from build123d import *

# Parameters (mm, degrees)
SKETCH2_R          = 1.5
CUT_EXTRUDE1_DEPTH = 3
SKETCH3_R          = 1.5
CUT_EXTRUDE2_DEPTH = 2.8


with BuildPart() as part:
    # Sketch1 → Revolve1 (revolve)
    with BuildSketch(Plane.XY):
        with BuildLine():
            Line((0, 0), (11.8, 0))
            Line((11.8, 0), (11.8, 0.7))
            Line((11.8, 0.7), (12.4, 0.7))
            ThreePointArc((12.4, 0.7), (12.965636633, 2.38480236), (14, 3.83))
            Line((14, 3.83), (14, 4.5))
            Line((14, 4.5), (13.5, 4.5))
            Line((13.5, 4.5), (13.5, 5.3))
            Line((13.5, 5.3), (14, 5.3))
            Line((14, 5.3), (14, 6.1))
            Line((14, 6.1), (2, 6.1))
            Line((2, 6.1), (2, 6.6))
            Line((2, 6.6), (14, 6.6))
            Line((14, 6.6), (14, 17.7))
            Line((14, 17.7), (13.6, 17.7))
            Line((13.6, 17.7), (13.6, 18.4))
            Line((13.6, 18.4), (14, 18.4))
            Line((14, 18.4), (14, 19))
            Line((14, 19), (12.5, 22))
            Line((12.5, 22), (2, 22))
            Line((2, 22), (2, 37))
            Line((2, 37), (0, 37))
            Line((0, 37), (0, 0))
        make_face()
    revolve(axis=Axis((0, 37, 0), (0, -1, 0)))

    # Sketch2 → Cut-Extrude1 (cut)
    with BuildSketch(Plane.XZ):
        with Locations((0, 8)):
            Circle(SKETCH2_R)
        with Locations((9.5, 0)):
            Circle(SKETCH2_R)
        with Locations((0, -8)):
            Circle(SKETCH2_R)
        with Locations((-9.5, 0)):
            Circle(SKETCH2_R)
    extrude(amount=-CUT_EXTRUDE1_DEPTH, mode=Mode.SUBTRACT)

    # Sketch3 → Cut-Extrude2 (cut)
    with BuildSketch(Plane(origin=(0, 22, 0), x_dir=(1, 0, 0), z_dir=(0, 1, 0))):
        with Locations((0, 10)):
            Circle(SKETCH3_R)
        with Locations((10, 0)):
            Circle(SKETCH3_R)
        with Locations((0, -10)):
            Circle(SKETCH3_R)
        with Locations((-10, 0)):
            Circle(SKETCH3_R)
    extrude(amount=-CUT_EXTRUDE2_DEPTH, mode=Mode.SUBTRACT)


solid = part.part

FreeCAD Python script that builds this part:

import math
import FreeCAD as App
import Part
import Sketcher
from FreeCAD import Vector
Q = App.Units.Quantity

doc = App.newDocument("Part")
body = doc.addObject("PartDesign::Body", "Body")

sketch1 = body.newObject("Sketcher::SketchObject", "Sketch")
sketch1.AttachmentSupport = (doc.getObject("XY_Plane"), [""])
sketch1.MapMode = "FlatFace"
sketch1.addGeometry([
    Part.LineSegment(Vector(0, 0, 0), Vector(11.8, 0, 0)),
    Part.LineSegment(Vector(11.8, 0, 0), Vector(11.8, 0.7, 0)),
    Part.LineSegment(Vector(11.8, 0.7, 0), Vector(12.4, 0.7, 0)),
    Part.ArcOfCircle(Part.Circle(Vector(18.308091, -0.346165, 0), Vector(0, 0, 1), 6), math.radians(135.890851), math.radians(169.958538)),
    Part.LineSegment(Vector(14, 3.83, 0), Vector(14, 4.5, 0)),
    Part.LineSegment(Vector(14, 4.5, 0), Vector(13.5, 4.5, 0)),
    Part.LineSegment(Vector(13.5, 4.5, 0), Vector(13.5, 5.3, 0)),
    Part.LineSegment(Vector(13.5, 5.3, 0), Vector(14, 5.3, 0)),
    Part.LineSegment(Vector(14, 5.3, 0), Vector(14, 6.1, 0)),
    Part.LineSegment(Vector(14, 6.1, 0), Vector(2, 6.1, 0)),
    Part.LineSegment(Vector(2, 6.1, 0), Vector(2, 6.6, 0)),
    Part.LineSegment(Vector(2, 6.6, 0), Vector(14, 6.6, 0)),
    Part.LineSegment(Vector(14, 6.6, 0), Vector(14, 17.7, 0)),
    Part.LineSegment(Vector(14, 17.7, 0), Vector(13.6, 17.7, 0)),
    Part.LineSegment(Vector(13.6, 17.7, 0), Vector(13.6, 18.4, 0)),
    Part.LineSegment(Vector(13.6, 18.4, 0), Vector(14, 18.4, 0)),
    Part.LineSegment(Vector(14, 18.4, 0), Vector(14, 19, 0)),
    Part.LineSegment(Vector(14, 19, 0), Vector(12.5, 22, 0)),
    Part.LineSegment(Vector(12.5, 22, 0), Vector(2, 22, 0)),
    Part.LineSegment(Vector(2, 22, 0), Vector(2, 37, 0)),
    Part.LineSegment(Vector(2, 37, 0), Vector(0, 37, 0)),
    Part.LineSegment(Vector(0, 37, 0), Vector(0, 0, 0)),
], False)
sketch1.addConstraint([
    Sketcher.Constraint("Coincident", 0, 2, 1, 1),
    Sketcher.Constraint("Coincident", 1, 2, 2, 1),
    Sketcher.Constraint("Coincident", 2, 2, 3, 2),
    Sketcher.Constraint("Coincident", 3, 1, 4, 1),
    Sketcher.Constraint("Coincident", 4, 2, 5, 1),
    Sketcher.Constraint("Coincident", 5, 2, 6, 1),
    Sketcher.Constraint("Coincident", 6, 2, 7, 1),
    Sketcher.Constraint("Coincident", 7, 2, 8, 1),
    Sketcher.Constraint("Coincident", 8, 2, 9, 1),
    Sketcher.Constraint("Coincident", 9, 2, 10, 1),
    Sketcher.Constraint("Coincident", 10, 2, 11, 1),
    Sketcher.Constraint("Coincident", 11, 2, 12, 1),
    Sketcher.Constraint("Coincident", 12, 2, 13, 1),
    Sketcher.Constraint("Coincident", 13, 2, 14, 1),
    Sketcher.Constraint("Coincident", 14, 2, 15, 1),
    Sketcher.Constraint("Coincident", 15, 2, 16, 1),
    Sketcher.Constraint("Coincident", 16, 2, 17, 1),
    Sketcher.Constraint("Coincident", 17, 2, 18, 1),
    Sketcher.Constraint("Coincident", 18, 2, 19, 1),
    Sketcher.Constraint("Coincident", 19, 2, 20, 1),
    Sketcher.Constraint("Coincident", 20, 2, 21, 1),
    Sketcher.Constraint("Coincident", 21, 2, 0, 1),
    Sketcher.Constraint("Horizontal", 0),
    Sketcher.Constraint("Vertical", 1),
    Sketcher.Constraint("Horizontal", 2),
    Sketcher.Constraint("Vertical", 4),
    Sketcher.Constraint("Horizontal", 5),
    Sketcher.Constraint("Vertical", 6),
    Sketcher.Constraint("Horizontal", 7),
    Sketcher.Constraint("Vertical", 8),
    Sketcher.Constraint("Horizontal", 9),
    Sketcher.Constraint("Vertical", 10),
    Sketcher.Constraint("Horizontal", 11),
    Sketcher.Constraint("Vertical", 12),
    Sketcher.Constraint("Horizontal", 13),
    Sketcher.Constraint("Vertical", 14),
    Sketcher.Constraint("Horizontal", 15),
    Sketcher.Constraint("Vertical", 16),
    Sketcher.Constraint("Horizontal", 18),
    Sketcher.Constraint("Vertical", 19),
    Sketcher.Constraint("Horizontal", 20),
    Sketcher.Constraint("Vertical", 21),
    Sketcher.Constraint("Coincident", 21, 2, -1, 1),
    Sketcher.Constraint("Vertical", 4, 2, 7, 2),
    Sketcher.Constraint("Vertical", 8, 2, 11, 2),
    Sketcher.Constraint("Vertical", 12, 2, 15, 2),
    Sketcher.Constraint("Vertical", 10, 2, 18, 2),
    Sketcher.Constraint("Equal", 6, 8),
    Sketcher.Constraint("Equal", 7, 10),
    Sketcher.Constraint("Equal", 1, 14),
    Sketcher.Constraint("Equal", 2, 16),
    Sketcher.Constraint("Radius", 3, Q("6 mm")),
    Sketcher.Constraint("DistanceX", 9, 2, 9, 1, Q("12 mm")),
    Sketcher.Constraint("DistanceX", 20, 2, 20, 1, Q("2 mm")),
    Sketcher.Constraint("DistanceY", 19, 1, 19, 2, Q("15 mm")),
    Sketcher.Constraint("DistanceY", 21, 2, 21, 1, Q("37 mm")),
    Sketcher.Constraint("DistanceX", 0, 1, 0, 2, Q("11.8 mm")),
    Sketcher.Constraint("DistanceX", 2, 1, 2, 2, Q("0.6 mm")),
    Sketcher.Constraint("DistanceX", 5, 2, 5, 1, Q("0.5 mm")),
    Sketcher.Constraint("DistanceX", 13, 2, 13, 1, Q("0.4 mm")),
    Sketcher.Constraint("DistanceX", 18, 2, 18, 1, Q("10.5 mm")),
    Sketcher.Constraint("DistanceY", 1, 1, 1, 2, Q("0.7 mm")),
    Sketcher.Constraint("DistanceY", 6, 1, 6, 2, Q("0.8 mm")),
    Sketcher.Constraint("DistanceY", 12, 1, 12, 2, Q("11.1 mm")),
    Sketcher.Constraint("DistanceY", -1, 1, 16, 2, Q("19 mm")),
    Sketcher.Constraint("DistanceY", 4, 1, 4, 2, Q("0.67 mm")),
])
revolution = body.newObject("PartDesign::Revolution", "Revolution")
revolution.Profile = sketch1
revolution.ReferenceAxis = (sketch1, ["V_Axis"])
revolution.Angle = 360

sketch2 = body.newObject("Sketcher::SketchObject", "Sketch001")
sketch2.AttachmentSupport = (doc.getObject("XZ_Plane"), [""])
sketch2.MapMode = "FlatFace"
sketch2.addGeometry([
    Part.Circle(Vector(0, 8, 0), Vector(0, 0, 1), 1.5),
    Part.Circle(Vector(9.5, 0, 0), Vector(0, 0, 1), 1.5),
    Part.Circle(Vector(0, -8, 0), Vector(0, 0, 1), 1.5),
    Part.Circle(Vector(-9.5, 0, 0), Vector(0, 0, 1), 1.5),
], False)
sketch2.addConstraint([
    Sketcher.Constraint("Equal", 0, 1),
    Sketcher.Constraint("Equal", 1, 2),
    Sketcher.Constraint("Equal", 2, 3),
    Sketcher.Constraint("Symmetric", 0, 3, 2, 3, -1, 1),
    Sketcher.Constraint("Symmetric", 1, 3, 3, 3, -1, 1),
    Sketcher.Constraint("PointOnObject", 0, 3, -2),
    Sketcher.Constraint("PointOnObject", 1, 3, -1),
    Sketcher.Constraint("Diameter", 0, Q("3 mm")),
    Sketcher.Constraint("DistanceY", -1, 1, 0, 3, Q("8 mm")),
    Sketcher.Constraint("DistanceX", 3, 3, 1, 3, Q("19 mm")),
])
pocket1 = body.newObject("PartDesign::Pocket", "Pocket")
pocket1.Profile = sketch2
pocket1.Length = 3

sketch3 = body.newObject("Sketcher::SketchObject", "Sketch002")
sketch3.AttachmentSupport = (doc.getObject("XZ_Plane"), [""])
sketch3.MapMode = "FlatFace"
sketch3.AttachmentOffset = App.Placement(Vector(0, 0, -22), App.Rotation())
sketch3.addGeometry([
    Part.Circle(Vector(0, -10, 0), Vector(0, 0, 1), 1.5),
    Part.Circle(Vector(10, 0, 0), Vector(0, 0, 1), 1.5),
    Part.Circle(Vector(0, 10, 0), Vector(0, 0, 1), 1.5),
    Part.Circle(Vector(-10, 0, 0), Vector(0, 0, 1), 1.5),
], False)
sketch3.addConstraint([
    Sketcher.Constraint("Equal", 0, 1),
    Sketcher.Constraint("Equal", 1, 2),
    Sketcher.Constraint("Equal", 2, 3),
    Sketcher.Constraint("Symmetric", 0, 3, 2, 3, -1, 1),
    Sketcher.Constraint("Symmetric", 1, 3, 3, 3, -1, 1),
    Sketcher.Constraint("PointOnObject", 0, 3, -2),
    Sketcher.Constraint("PointOnObject", 1, 3, -1),
    Sketcher.Constraint("Diameter", 0, Q("3 mm")),
    Sketcher.Constraint("DistanceY", 0, 3, -1, 1, Q("10 mm")),
    Sketcher.Constraint("DistanceX", -1, 1, 1, 3, Q("10 mm")),
])
pocket2 = body.newObject("PartDesign::Pocket", "Pocket001")
pocket2.Profile = sketch3
pocket2.Length = 2.8
pocket2.Reversed = True

doc.recompute()
